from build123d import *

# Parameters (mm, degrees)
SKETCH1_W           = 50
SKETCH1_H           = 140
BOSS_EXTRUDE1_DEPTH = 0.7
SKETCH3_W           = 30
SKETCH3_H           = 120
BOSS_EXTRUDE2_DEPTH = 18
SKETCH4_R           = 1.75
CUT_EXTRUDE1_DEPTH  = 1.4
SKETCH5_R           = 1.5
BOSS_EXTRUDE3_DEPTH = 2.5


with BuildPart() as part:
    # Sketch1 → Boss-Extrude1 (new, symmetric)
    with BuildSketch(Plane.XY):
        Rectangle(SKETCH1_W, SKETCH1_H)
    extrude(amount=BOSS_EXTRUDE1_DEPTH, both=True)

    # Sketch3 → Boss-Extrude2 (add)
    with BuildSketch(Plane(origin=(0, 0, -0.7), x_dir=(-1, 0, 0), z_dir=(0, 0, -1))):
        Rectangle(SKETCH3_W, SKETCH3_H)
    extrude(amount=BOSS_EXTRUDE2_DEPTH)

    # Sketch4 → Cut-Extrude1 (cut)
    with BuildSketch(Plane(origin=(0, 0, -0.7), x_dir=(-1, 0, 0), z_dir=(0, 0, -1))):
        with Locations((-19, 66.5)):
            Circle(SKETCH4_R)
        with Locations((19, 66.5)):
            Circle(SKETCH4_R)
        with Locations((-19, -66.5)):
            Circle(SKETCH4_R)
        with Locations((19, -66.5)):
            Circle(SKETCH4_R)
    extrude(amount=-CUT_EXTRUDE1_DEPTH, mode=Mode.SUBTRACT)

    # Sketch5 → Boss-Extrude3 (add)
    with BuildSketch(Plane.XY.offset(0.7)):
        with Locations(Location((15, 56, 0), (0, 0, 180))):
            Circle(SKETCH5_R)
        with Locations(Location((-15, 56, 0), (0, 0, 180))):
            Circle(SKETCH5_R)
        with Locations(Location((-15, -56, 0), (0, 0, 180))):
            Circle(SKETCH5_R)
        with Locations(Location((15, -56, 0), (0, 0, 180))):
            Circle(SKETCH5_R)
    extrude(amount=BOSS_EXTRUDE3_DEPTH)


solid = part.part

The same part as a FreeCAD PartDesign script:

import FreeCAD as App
import Part
import Sketcher

V = App.Vector
Q = App.Units.Quantity


def add_polygon(sketch, points):
    """Adds a closed chain of lines whose ends are joined by coincident constraints."""
    first, n = sketch.GeometryCount, len(points)
    for a, b in zip(points, points[1:] + points[:1]):
        sketch.addGeometry(Part.LineSegment(App.Vector(*a, 0), App.Vector(*b, 0)), False)
    for i in range(n):
        sketch.addConstraint(Sketcher.Constraint("Coincident", first + i, 2, first + (i + 1) % n, 1))

doc = App.newDocument("Part")
body = doc.addObject("PartDesign::Body", "Body")

sketch1 = body.newObject("Sketcher::SketchObject", "Sketch")
sketch1.AttachmentSupport = (doc.getObject("XY_Plane"), [""])
sketch1.MapMode = "FlatFace"
add_polygon(sketch1, [(-25, 70), (-25, -70), (25, -70), (25, 70)])
sketch1.addConstraint([
    Sketcher.Constraint("Vertical", 0),
    Sketcher.Constraint("Horizontal", 1),
    Sketcher.Constraint("Vertical", 2),
    Sketcher.Constraint("Horizontal", 3),
    Sketcher.Constraint("Symmetric", 0, 2, 2, 2, -1, 1),
    Sketcher.Constraint("DistanceX", 1, 1, 1, 2, Q("50 mm")),
    Sketcher.Constraint("DistanceY", 0, 2, 0, 1, Q("140 mm")),
])
pad1 = body.newObject("PartDesign::Pad", "Pad")
pad1.Profile = sketch1
pad1.Length = 1.4
pad1.Midplane = True

sketch2 = body.newObject("Sketcher::SketchObject", "Sketch001")
sketch2.AttachmentSupport = (doc.getObject("XY_Plane"), [""])
sketch2.MapMode = "FlatFace"
sketch2.AttachmentOffset = App.Placement(V(0, 0, -0.7), App.Rotation())
add_polygon(sketch2, [(15, 60), (15, -60), (-15, -60), (-15, 60)])
sketch2.addConstraint([
    Sketcher.Constraint("Vertical", 0),
    Sketcher.Constraint("Horizontal", 1),
    Sketcher.Constraint("Vertical", 2),
    Sketcher.Constraint("Horizontal", 3),
    Sketcher.Constraint("Symmetric", 0, 2, 2, 2, -1, 1),
    Sketcher.Constraint("DistanceX", 1, 2, 1, 1, Q("30 mm")),
    Sketcher.Constraint("DistanceY", 0, 2, 0, 1, Q("120 mm")),
])
pad2 = body.newObject("PartDesign::Pad", "Pad001")
pad2.Profile = sketch2
pad2.Length = 18
pad2.Reversed = True

sketch3 = body.newObject("Sketcher::SketchObject", "Sketch002")
sketch3.AttachmentSupport = (doc.getObject("XY_Plane"), [""])
sketch3.MapMode = "FlatFace"
sketch3.AttachmentOffset = App.Placement(V(0, 0, -0.7), App.Rotation())
sketch3.addGeometry([
    Part.Circle(V(19, 66.5, 0), V(0, 0, 1), 1.75),
    Part.Circle(V(-19, 66.5, 0), V(0, 0, 1), 1.75),
    Part.Circle(V(19, -66.5, 0), V(0, 0, 1), 1.75),
    Part.Circle(V(-19, -66.5, 0), V(0, 0, 1), 1.75),
], False)
sketch3.addConstraint([
    Sketcher.Constraint("Equal", 0, 1),
    Sketcher.Constraint("Equal", 1, 2),
    Sketcher.Constraint("Equal", 2, 3),
    Sketcher.Constraint("Symmetric", 1, 3, 2, 3, -1, 1),
    Sketcher.Constraint("Symmetric", 0, 3, 3, 3, -1, 1),
    Sketcher.Constraint("Symmetric", 0, 3, 1, 3, -2),
    Sketcher.Constraint("Diameter", 0, Q("3.5 mm")),
    Sketcher.Constraint("DistanceX", -1, 1, 0, 3, Q("19 mm")),
    Sketcher.Constraint("DistanceY", 2, 3, 0, 3, Q("133 mm")),
])
pocket1 = body.newObject("PartDesign::Pocket", "Pocket")
pocket1.Profile = sketch3
pocket1.Length = 1.4
pocket1.Reversed = True

sketch4 = body.newObject("Sketcher::SketchObject", "Sketch003")
sketch4.AttachmentSupport = (doc.getObject("XY_Plane"), [""])
sketch4.MapMode = "FlatFace"
sketch4.AttachmentOffset = App.Placement(V(0, 0, 0.7), App.Rotation())
sketch4.addGeometry([
    Part.Circle(V(15, 56, 0), V(0, 0, 1), 1.5),
    Part.Circle(V(-15, 56, 0), V(0, 0, 1), 1.5),
    Part.Circle(V(-15, -56, 0), V(0, 0, 1), 1.5),
    Part.Circle(V(15, -56, 0), V(0, 0, 1), 1.5),
], False)
sketch4.addConstraint([
    Sketcher.Constraint("Equal", 0, 1),
    Sketcher.Constraint("Equal", 1, 2),
    Sketcher.Constraint("Equal", 2, 3),
    Sketcher.Constraint("Symmetric", 0, 3, 2, 3, -1, 1),
    Sketcher.Constraint("Symmetric", 1, 3, 3, 3, -1, 1),
    Sketcher.Constraint("Symmetric", 0, 3, 1, 3, -2),
    Sketcher.Constraint("Diameter", 0, Q("3 mm")),
    Sketcher.Constraint("DistanceX", -1, 1, 0, 3, Q("15 mm")),
    Sketcher.Constraint("DistanceY", -1, 1, 0, 3, Q("56 mm")),
])
pad3 = body.newObject("PartDesign::Pad", "Pad002")
pad3.Profile = sketch4
pad3.Length = 2.5

doc.recompute()
